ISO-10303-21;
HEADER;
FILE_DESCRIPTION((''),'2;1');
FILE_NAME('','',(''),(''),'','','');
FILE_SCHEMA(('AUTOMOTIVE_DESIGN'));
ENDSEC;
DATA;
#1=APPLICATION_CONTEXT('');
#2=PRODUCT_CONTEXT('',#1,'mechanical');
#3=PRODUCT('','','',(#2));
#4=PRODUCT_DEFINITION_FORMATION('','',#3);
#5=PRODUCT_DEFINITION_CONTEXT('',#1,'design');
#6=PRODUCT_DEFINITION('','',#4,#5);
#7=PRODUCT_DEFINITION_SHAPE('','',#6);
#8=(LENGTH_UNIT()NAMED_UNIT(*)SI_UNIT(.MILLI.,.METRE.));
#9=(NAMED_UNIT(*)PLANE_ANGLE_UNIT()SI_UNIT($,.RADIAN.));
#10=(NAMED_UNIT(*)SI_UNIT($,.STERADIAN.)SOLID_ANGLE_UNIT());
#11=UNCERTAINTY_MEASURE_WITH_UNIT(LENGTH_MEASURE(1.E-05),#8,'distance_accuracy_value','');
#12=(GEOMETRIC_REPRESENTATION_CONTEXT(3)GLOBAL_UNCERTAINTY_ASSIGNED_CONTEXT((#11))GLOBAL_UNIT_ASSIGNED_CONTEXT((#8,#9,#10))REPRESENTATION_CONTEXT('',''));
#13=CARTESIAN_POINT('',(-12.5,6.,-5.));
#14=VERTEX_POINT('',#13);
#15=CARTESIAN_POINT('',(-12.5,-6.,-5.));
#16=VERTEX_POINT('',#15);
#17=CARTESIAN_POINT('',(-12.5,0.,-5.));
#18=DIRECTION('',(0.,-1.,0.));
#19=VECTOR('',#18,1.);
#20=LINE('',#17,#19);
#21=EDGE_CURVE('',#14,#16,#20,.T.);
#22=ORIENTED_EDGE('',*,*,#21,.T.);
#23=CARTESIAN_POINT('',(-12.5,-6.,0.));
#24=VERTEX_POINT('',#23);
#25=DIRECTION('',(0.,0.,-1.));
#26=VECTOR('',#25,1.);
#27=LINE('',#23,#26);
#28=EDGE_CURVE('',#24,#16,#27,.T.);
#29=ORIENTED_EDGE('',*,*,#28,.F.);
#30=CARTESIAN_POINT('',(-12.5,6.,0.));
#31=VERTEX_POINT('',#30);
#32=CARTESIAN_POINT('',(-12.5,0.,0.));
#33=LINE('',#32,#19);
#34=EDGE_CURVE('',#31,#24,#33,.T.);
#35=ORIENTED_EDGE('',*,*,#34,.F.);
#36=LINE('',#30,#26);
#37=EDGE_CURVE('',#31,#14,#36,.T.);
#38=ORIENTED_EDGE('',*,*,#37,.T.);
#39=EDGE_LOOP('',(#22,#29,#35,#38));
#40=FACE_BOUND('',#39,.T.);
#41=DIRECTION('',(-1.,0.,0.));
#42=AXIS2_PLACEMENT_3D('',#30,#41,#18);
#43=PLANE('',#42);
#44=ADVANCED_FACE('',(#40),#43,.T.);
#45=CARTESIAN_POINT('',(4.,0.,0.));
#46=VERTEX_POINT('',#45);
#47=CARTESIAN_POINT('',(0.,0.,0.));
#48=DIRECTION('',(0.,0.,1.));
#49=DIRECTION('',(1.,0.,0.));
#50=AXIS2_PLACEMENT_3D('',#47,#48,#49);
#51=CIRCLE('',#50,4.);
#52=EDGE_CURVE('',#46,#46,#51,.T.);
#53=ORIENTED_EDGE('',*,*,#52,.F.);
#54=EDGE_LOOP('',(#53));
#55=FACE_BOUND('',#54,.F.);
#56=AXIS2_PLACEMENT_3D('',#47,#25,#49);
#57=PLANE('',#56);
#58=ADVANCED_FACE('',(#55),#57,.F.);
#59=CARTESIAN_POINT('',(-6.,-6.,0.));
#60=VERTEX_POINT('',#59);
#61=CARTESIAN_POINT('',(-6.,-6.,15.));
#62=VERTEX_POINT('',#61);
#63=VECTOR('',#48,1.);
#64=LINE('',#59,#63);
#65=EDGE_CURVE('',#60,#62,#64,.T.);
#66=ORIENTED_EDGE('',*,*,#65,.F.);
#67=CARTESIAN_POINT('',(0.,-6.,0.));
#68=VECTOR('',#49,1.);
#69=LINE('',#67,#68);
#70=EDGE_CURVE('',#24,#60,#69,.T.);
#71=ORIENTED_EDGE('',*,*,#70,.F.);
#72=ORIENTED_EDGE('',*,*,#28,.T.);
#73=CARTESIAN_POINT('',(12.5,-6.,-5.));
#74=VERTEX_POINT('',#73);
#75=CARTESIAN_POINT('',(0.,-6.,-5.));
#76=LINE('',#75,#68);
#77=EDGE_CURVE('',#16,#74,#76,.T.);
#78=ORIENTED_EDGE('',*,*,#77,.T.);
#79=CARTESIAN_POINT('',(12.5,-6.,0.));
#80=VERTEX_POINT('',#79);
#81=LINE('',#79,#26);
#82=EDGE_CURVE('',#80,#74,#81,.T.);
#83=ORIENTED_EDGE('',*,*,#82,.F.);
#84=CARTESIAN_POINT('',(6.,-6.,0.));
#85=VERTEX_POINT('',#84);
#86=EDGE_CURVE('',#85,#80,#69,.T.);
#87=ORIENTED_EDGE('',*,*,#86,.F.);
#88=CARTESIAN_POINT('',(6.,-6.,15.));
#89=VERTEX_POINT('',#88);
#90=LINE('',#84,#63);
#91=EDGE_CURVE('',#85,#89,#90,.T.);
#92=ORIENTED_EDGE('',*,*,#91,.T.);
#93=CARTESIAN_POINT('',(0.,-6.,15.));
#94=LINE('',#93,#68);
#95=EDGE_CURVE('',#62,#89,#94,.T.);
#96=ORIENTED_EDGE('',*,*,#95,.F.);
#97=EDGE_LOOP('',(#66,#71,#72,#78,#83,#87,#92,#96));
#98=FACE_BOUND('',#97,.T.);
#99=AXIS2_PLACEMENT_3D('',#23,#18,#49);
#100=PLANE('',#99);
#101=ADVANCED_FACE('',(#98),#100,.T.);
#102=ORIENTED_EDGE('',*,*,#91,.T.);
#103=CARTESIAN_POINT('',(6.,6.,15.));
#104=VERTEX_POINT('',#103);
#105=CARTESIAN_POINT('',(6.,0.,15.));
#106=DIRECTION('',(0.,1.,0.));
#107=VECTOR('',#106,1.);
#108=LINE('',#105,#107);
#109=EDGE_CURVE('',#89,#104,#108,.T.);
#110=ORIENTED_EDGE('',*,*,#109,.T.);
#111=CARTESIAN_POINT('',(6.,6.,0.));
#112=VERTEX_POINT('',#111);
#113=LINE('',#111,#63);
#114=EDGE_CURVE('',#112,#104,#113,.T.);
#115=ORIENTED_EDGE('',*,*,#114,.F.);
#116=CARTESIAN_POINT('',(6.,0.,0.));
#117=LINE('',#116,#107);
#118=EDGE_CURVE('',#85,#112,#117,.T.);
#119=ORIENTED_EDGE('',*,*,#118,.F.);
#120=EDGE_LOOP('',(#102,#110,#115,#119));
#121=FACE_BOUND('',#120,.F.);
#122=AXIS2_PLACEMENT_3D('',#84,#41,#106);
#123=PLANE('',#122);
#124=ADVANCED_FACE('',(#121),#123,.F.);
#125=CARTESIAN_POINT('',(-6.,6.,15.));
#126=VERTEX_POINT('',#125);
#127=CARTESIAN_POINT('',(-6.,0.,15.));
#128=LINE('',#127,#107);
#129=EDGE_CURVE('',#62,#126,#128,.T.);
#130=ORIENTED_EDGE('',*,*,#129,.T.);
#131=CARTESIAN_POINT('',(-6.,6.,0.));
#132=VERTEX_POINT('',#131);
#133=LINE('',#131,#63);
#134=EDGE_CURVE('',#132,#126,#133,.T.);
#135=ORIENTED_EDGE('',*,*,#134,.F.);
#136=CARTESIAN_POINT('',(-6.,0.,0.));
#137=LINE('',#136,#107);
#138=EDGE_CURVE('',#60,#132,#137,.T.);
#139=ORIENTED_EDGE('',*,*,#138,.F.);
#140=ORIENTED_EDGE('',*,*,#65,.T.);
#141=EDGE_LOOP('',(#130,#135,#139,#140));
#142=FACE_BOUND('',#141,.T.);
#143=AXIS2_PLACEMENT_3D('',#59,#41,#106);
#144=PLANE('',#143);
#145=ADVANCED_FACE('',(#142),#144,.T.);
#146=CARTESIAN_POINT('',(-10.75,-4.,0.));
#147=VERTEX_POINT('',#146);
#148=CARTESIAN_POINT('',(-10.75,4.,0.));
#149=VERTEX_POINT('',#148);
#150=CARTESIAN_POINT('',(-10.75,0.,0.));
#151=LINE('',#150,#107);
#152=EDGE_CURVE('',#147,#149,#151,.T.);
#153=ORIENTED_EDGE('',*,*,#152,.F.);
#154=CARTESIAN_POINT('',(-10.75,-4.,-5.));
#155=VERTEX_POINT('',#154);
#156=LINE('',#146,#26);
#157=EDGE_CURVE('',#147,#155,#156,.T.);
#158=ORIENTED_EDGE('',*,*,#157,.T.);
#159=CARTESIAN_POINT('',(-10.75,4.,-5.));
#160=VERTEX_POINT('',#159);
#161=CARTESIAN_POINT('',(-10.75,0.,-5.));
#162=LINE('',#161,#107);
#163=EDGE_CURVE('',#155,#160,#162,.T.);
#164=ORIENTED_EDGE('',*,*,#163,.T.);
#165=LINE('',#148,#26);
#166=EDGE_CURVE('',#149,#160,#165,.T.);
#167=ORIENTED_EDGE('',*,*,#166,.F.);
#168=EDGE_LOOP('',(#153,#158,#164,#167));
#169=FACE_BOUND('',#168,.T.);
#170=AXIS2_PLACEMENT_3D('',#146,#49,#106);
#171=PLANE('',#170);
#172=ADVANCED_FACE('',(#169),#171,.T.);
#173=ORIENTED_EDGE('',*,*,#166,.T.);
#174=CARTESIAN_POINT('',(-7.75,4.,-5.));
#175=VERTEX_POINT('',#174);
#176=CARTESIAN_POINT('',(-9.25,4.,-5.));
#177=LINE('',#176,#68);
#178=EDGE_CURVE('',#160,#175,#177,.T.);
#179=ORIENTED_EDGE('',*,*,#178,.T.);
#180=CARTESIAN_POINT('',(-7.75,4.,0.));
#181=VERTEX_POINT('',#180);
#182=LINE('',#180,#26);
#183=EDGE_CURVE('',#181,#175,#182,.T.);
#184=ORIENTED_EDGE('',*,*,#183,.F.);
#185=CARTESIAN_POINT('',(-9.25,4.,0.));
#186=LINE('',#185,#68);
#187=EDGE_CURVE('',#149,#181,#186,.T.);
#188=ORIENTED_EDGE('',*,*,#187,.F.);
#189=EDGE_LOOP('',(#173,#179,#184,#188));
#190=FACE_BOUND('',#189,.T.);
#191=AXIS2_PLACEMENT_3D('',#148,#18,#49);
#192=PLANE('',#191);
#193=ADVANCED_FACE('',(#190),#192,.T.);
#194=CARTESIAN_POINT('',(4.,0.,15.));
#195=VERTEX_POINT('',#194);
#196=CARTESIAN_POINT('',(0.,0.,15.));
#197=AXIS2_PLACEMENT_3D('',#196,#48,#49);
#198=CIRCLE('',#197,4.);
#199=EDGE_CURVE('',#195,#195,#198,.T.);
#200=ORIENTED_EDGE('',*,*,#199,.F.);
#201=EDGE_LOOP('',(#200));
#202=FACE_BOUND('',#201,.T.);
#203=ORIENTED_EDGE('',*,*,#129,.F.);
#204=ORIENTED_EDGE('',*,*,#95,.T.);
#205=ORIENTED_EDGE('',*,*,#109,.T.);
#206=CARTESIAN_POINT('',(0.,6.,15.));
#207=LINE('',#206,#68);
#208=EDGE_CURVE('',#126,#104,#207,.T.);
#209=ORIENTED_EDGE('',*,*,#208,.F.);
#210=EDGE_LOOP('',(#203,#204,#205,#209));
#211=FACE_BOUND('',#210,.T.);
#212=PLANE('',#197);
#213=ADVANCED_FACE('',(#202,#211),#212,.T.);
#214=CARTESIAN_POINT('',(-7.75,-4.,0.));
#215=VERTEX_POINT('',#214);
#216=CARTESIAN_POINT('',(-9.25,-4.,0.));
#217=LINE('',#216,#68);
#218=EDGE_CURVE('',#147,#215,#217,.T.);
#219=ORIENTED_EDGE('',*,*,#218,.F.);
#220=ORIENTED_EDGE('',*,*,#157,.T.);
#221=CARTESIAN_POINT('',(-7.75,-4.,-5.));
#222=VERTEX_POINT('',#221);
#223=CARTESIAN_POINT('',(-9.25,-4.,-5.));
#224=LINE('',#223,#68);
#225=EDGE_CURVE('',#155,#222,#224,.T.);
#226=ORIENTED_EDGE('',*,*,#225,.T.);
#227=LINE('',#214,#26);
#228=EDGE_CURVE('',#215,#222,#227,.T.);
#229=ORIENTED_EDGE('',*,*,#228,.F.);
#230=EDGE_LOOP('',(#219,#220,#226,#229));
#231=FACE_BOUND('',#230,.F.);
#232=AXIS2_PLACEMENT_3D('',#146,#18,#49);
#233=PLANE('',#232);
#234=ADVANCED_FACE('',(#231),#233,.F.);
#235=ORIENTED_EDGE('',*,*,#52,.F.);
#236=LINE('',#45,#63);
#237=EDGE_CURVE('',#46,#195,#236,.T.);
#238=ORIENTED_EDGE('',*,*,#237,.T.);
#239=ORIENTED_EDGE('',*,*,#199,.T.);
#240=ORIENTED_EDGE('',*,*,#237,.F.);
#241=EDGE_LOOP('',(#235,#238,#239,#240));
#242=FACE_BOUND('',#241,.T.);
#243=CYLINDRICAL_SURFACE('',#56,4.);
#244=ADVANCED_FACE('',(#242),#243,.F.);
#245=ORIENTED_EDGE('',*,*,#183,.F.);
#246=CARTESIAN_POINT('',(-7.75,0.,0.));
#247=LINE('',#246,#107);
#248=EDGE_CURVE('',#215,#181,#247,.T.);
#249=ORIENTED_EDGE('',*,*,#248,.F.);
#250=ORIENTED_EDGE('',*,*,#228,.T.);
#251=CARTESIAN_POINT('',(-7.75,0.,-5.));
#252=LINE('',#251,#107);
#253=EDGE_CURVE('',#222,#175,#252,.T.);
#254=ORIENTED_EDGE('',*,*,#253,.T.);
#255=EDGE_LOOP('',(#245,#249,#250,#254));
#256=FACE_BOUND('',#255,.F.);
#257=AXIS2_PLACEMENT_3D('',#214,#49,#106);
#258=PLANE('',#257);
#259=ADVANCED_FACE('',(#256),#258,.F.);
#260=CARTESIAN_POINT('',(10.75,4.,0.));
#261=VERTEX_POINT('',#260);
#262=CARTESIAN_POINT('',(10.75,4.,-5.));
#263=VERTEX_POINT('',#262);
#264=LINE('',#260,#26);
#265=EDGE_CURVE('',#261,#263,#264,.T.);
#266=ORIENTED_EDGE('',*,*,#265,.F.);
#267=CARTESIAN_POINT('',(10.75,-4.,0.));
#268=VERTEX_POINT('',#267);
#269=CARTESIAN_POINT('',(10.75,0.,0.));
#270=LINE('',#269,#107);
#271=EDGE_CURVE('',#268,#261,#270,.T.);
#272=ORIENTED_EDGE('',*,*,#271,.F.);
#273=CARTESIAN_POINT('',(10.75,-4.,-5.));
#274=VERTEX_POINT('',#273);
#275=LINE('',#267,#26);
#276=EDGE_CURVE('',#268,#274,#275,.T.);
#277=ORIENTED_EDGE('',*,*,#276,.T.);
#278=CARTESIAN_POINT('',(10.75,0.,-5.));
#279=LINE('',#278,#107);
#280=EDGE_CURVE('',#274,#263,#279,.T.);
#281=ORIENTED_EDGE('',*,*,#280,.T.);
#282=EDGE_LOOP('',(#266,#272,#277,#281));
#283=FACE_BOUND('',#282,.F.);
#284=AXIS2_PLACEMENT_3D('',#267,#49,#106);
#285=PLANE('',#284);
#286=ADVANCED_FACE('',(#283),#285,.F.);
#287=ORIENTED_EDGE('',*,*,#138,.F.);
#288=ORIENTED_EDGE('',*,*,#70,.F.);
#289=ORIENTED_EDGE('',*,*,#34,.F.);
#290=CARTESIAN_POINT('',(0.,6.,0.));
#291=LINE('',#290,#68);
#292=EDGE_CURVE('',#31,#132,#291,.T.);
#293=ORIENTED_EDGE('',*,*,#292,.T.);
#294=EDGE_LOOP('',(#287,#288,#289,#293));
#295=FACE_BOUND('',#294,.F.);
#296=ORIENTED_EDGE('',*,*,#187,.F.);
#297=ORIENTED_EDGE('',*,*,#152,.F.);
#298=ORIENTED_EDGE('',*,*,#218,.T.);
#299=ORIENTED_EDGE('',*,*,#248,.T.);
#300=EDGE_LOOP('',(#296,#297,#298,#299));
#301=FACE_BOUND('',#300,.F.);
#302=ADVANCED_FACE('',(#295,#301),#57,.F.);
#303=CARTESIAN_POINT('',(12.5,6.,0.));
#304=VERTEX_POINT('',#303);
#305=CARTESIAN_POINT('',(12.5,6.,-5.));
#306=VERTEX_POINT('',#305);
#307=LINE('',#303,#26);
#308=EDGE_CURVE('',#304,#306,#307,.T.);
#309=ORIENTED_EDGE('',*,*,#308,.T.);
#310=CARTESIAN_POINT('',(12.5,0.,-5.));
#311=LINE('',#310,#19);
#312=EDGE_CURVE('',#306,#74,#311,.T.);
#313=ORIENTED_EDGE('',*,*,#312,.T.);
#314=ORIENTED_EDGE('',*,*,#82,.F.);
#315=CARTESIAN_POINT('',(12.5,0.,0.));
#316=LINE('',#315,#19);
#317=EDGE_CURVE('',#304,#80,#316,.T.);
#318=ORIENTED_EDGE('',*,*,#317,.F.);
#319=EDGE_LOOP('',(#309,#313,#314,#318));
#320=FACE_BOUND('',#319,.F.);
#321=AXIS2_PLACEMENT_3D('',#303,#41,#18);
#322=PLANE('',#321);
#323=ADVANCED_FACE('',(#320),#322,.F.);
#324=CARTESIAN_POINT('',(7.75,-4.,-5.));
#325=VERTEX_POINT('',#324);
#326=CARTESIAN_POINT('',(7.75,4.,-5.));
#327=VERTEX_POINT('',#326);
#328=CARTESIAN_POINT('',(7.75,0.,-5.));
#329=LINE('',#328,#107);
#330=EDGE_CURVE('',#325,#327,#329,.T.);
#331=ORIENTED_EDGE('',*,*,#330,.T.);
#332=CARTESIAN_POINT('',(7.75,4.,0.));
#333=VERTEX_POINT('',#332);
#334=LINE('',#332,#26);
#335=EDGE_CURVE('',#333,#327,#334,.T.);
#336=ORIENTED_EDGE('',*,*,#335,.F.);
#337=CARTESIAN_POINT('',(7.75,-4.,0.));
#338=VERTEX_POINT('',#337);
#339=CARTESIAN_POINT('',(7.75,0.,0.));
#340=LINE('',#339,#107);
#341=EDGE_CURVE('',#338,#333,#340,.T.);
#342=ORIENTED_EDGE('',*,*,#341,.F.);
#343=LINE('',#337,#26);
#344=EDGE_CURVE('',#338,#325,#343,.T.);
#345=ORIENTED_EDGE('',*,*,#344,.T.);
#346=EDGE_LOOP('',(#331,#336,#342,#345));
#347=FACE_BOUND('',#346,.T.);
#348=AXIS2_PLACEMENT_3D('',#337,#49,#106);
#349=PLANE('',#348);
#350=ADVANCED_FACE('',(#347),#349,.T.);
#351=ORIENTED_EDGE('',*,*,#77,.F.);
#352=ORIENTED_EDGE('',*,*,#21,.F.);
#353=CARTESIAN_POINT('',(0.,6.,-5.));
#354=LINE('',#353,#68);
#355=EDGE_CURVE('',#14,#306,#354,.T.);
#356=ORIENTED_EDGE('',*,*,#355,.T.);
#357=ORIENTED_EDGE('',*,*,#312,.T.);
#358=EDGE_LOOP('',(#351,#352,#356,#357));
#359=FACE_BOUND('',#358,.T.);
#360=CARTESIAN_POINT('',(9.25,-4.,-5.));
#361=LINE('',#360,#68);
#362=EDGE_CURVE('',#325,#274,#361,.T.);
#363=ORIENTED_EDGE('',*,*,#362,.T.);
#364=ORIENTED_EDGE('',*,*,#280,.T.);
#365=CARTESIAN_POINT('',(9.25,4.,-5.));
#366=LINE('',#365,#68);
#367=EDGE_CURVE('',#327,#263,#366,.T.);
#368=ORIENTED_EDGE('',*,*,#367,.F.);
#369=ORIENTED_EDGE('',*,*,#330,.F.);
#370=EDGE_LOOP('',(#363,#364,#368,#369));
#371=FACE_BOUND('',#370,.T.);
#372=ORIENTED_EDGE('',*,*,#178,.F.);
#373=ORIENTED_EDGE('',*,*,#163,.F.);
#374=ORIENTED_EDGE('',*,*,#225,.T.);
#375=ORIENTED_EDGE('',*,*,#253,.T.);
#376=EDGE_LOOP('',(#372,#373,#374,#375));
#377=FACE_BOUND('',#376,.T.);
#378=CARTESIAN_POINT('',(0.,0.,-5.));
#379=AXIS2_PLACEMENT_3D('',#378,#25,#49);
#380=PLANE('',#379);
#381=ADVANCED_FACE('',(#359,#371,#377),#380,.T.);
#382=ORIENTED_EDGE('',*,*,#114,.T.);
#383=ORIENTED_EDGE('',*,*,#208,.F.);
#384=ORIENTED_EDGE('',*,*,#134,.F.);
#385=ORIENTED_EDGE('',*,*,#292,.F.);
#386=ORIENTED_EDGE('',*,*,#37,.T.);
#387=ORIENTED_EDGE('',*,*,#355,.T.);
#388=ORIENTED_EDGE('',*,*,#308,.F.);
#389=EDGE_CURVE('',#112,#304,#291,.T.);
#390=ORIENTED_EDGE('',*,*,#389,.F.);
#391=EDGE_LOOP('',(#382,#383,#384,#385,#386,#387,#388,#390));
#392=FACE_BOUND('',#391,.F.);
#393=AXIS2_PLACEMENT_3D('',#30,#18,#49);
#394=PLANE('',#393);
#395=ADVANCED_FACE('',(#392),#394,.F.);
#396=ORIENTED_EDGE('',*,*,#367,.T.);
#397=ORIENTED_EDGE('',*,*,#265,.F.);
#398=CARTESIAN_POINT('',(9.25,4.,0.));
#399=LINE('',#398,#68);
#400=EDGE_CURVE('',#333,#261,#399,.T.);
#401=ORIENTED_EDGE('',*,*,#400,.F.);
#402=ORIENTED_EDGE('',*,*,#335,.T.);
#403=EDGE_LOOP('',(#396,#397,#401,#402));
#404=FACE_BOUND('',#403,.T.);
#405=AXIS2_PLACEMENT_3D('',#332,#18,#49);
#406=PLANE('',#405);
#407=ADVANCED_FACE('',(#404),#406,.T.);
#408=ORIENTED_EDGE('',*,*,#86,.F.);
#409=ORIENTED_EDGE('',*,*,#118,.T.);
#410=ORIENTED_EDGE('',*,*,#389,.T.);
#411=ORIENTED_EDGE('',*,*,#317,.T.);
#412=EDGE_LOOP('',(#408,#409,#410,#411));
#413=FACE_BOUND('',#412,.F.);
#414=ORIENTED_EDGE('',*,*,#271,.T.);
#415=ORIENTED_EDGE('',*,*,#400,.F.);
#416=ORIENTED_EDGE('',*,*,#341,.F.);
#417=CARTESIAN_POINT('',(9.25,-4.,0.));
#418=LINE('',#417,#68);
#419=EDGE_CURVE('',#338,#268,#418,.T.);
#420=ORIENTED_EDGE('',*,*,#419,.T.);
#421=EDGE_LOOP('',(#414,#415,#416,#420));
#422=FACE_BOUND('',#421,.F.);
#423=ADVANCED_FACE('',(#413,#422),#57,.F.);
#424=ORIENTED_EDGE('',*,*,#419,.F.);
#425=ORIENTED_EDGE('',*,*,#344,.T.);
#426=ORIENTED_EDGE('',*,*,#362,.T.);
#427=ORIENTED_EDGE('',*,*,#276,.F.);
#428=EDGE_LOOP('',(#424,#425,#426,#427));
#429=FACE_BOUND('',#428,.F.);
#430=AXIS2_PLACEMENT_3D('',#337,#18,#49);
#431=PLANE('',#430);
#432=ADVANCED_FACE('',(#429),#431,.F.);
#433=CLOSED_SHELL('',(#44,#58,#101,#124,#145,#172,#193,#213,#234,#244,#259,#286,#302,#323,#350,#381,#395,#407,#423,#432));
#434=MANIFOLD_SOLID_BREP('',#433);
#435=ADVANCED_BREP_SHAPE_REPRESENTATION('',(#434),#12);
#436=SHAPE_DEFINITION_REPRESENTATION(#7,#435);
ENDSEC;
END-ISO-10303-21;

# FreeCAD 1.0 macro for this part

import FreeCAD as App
import Part
import Sketcher
from FreeCAD import Vector

doc = App.newDocument("Part")
params = doc.addObject("Spreadsheet::Sheet", "Params")
for row, (alias, value) in enumerate([
    ("sketch1_diameter", "8 mm"),
    ("sketch1_width", "12 mm"),
    ("pad1_length", "15 mm"),
    ("sketch2_width", "25 mm"),
    ("sketch2_height", "12 mm"),
    ("pad2_length", "5 mm"),
    ("sketch3_width", "3 mm"),
    ("sketch3_height", "8 mm"),
    ("pocket1_length", "5 mm"),
], start=1):
    params.set(f"A{row}", alias)
    params.set(f"B{row}", "=" + value)
    params.setAlias(f"B{row}", alias)

body = doc.addObject("PartDesign::Body", "Body")

# Sketch on XY plane
sketch1 = body.newObject("Sketcher::SketchObject", "Sketch")
sketch1.AttachmentSupport = (doc.getObject("XY_Plane"), [""])
sketch1.MapMode = "FlatFace"
sketch1.addGeometry([
    Part.LineSegment(Vector(-6, 6, 0), Vector(-6, -6, 0)),  # 0
    Part.LineSegment(Vector(-6, -6, 0), Vector(6, -6, 0)),  # 1
    Part.LineSegment(Vector(6, -6, 0), Vector(6, 6, 0)),  # 2
    Part.LineSegment(Vector(6, 6, 0), Vector(-6, 6, 0)),  # 3
    Part.Circle(Vector(0, 0, 0), Vector(0, 0, 1), 4),  # 4
], False)
sketch1.addConstraint([
    Sketcher.Constraint("Coincident", 0, 2, 1, 1),
    Sketcher.Constraint("Coincident", 1, 2, 2, 1),
    Sketcher.Constraint("Coincident", 2, 2, 3, 1),
    Sketcher.Constraint("Coincident", 3, 2, 0, 1),
    Sketcher.Constraint("Vertical", 0),
    Sketcher.Constraint("Horizontal", 1),
    Sketcher.Constraint("Vertical", 2),
    Sketcher.Constraint("Horizontal", 3),
    Sketcher.Constraint("Coincident", 4, 3, -1, 1),
    Sketcher.Constraint("Symmetric", 0, 2, 2, 2, -1, 1),
    Sketcher.Constraint("Equal", 3, 0),
    Sketcher.Constraint("Diameter", 4, 8.0),
    Sketcher.Constraint("DistanceX", 1, 1, 1, 2, 12.0),
])
sketch1.setExpression("Constraints[11]", "Params.sketch1_diameter")
sketch1.setExpression("Constraints[12]", "Params.sketch1_width")
pad1 = body.newObject("PartDesign::Pad", "Pad")
pad1.Profile = sketch1
pad1.setExpression("Length", "Params.pad1_length")

# Sketch on XY plane
sketch2 = body.newObject("Sketcher::SketchObject", "Sketch001")
sketch2.AttachmentSupport = (doc.getObject("XY_Plane"), [""])
sketch2.MapMode = "FlatFace"
sketch2.addGeometry([
    Part.LineSegment(Vector(-12, -6, 0), Vector(-12, 6, 0)),
    Part.LineSegment(Vector(-12, 6, 0), Vector(12, 6, 0)),
    Part.LineSegment(Vector(12, 6, 0), Vector(12, -6, 0)),
    Part.LineSegment(Vector(12, -6, 0), Vector(-12, -6, 0)),
], False)
sketch2.addConstraint([
    Sketcher.Constraint("Coincident", 0, 2, 1, 1),
    Sketcher.Constraint("Coincident", 1, 2, 2, 1),
    Sketcher.Constraint("Coincident", 2, 2, 3, 1),
    Sketcher.Constraint("Coincident", 3, 2, 0, 1),
    Sketcher.Constraint("Vertical", 0),
    Sketcher.Constraint("Horizontal", 1),
    Sketcher.Constraint("Vertical", 2),
    Sketcher.Constraint("Horizontal", 3),
    Sketcher.Constraint("Symmetric", 0, 2, 2, 2, -1, 1),
    Sketcher.Constraint("DistanceX", 1, 1, 1, 2, 25.0),
    Sketcher.Constraint("DistanceY", 0, 1, 0, 2, 12.0),
])
sketch2.setExpression("Constraints[9]", "Params.sketch2_width")
sketch2.setExpression("Constraints[10]", "Params.sketch2_height")
pad2 = body.newObject("PartDesign::Pad", "Pad001")
pad2.Profile = sketch2
pad2.setExpression("Length", "Params.pad2_length")
pad2.Reversed = True

# Sketch on XY plane
sketch3 = body.newObject("Sketcher::SketchObject", "Sketch002")
sketch3.AttachmentSupport = (doc.getObject("XY_Plane"), [""])
sketch3.MapMode = "FlatFace"
sketch3.addGeometry([
    Part.LineSegment(Vector(-10.8, 4, 0), Vector(-10.8, -4, 0)),  # 0
    Part.LineSegment(Vector(-10.8, -4, 0), Vector(-7.8, -4, 0)),  # 1
    Part.LineSegment(Vector(-7.8, -4, 0), Vector(-7.8, 4, 0)),  # 2
    Part.LineSegment(Vector(-7.8, 4, 0), Vector(-10.8, 4, 0)),  # 3
    Part.LineSegment(Vector(7.8, 4, 0), Vector(7.8, -4, 0)),  # 4
    Part.LineSegment(Vector(7.8, -4, 0), Vector(10.8, -4, 0)),  # 5
    Part.LineSegment(Vector(10.8, -4, 0), Vector(10.8, 4, 0)),  # 6
    Part.LineSegment(Vector(10.8, 4, 0), Vector(7.8, 4, 0)),  # 7
], False)
sketch3.addConstraint([
    Sketcher.Constraint("Coincident", 0, 2, 1, 1),
    Sketcher.Constraint("Coincident", 1, 2, 2, 1),
    Sketcher.Constraint("Coincident", 2, 2, 3, 1),
    Sketcher.Constraint("Coincident", 3, 2, 0, 1),
    Sketcher.Constraint("Coincident", 4, 2, 5, 1),
    Sketcher.Constraint("Coincident", 5, 2, 6, 1),
    Sketcher.Constraint("Coincident", 6, 2, 7, 1),
    Sketcher.Constraint("Coincident", 7, 2, 4, 1),
    Sketcher.Constraint("Vertical", 0),
    Sketcher.Constraint("Horizontal", 1),
    Sketcher.Constraint("Vertical", 2),
    Sketcher.Constraint("Horizontal", 3),
    Sketcher.Constraint("Vertical", 4),
    Sketcher.Constraint("Horizontal", 5),
    Sketcher.Constraint("Vertical", 6),
    Sketcher.Constraint("Horizontal", 7),
    Sketcher.Constraint("Symmetric", 2, 2, 4, 2, -1, 1),
    Sketcher.Constraint("Symmetric", 0, 2, 6, 2, -1, 1),
    Sketcher.Constraint("Horizontal", 1, 2, 4, 2),
    Sketcher.Constraint("DistanceX", 1, 1, 1, 2, 3.0),
    Sketcher.Constraint("DistanceY", 0, 2, 0, 1, 8.0),
    Sketcher.Constraint("DistanceX", 1, 2, 4, 2, 15.5),
])
sketch3.setExpression("Constraints[19]", "Params.sketch3_width")
sketch3.setExpression("Constraints[20]", "Params.sketch3_height")
pocket1 = body.newObject("PartDesign::Pocket", "Pocket")
pocket1.Profile = sketch3
pocket1.setExpression("Length", "Params.pocket1_length")

doc.recompute()
